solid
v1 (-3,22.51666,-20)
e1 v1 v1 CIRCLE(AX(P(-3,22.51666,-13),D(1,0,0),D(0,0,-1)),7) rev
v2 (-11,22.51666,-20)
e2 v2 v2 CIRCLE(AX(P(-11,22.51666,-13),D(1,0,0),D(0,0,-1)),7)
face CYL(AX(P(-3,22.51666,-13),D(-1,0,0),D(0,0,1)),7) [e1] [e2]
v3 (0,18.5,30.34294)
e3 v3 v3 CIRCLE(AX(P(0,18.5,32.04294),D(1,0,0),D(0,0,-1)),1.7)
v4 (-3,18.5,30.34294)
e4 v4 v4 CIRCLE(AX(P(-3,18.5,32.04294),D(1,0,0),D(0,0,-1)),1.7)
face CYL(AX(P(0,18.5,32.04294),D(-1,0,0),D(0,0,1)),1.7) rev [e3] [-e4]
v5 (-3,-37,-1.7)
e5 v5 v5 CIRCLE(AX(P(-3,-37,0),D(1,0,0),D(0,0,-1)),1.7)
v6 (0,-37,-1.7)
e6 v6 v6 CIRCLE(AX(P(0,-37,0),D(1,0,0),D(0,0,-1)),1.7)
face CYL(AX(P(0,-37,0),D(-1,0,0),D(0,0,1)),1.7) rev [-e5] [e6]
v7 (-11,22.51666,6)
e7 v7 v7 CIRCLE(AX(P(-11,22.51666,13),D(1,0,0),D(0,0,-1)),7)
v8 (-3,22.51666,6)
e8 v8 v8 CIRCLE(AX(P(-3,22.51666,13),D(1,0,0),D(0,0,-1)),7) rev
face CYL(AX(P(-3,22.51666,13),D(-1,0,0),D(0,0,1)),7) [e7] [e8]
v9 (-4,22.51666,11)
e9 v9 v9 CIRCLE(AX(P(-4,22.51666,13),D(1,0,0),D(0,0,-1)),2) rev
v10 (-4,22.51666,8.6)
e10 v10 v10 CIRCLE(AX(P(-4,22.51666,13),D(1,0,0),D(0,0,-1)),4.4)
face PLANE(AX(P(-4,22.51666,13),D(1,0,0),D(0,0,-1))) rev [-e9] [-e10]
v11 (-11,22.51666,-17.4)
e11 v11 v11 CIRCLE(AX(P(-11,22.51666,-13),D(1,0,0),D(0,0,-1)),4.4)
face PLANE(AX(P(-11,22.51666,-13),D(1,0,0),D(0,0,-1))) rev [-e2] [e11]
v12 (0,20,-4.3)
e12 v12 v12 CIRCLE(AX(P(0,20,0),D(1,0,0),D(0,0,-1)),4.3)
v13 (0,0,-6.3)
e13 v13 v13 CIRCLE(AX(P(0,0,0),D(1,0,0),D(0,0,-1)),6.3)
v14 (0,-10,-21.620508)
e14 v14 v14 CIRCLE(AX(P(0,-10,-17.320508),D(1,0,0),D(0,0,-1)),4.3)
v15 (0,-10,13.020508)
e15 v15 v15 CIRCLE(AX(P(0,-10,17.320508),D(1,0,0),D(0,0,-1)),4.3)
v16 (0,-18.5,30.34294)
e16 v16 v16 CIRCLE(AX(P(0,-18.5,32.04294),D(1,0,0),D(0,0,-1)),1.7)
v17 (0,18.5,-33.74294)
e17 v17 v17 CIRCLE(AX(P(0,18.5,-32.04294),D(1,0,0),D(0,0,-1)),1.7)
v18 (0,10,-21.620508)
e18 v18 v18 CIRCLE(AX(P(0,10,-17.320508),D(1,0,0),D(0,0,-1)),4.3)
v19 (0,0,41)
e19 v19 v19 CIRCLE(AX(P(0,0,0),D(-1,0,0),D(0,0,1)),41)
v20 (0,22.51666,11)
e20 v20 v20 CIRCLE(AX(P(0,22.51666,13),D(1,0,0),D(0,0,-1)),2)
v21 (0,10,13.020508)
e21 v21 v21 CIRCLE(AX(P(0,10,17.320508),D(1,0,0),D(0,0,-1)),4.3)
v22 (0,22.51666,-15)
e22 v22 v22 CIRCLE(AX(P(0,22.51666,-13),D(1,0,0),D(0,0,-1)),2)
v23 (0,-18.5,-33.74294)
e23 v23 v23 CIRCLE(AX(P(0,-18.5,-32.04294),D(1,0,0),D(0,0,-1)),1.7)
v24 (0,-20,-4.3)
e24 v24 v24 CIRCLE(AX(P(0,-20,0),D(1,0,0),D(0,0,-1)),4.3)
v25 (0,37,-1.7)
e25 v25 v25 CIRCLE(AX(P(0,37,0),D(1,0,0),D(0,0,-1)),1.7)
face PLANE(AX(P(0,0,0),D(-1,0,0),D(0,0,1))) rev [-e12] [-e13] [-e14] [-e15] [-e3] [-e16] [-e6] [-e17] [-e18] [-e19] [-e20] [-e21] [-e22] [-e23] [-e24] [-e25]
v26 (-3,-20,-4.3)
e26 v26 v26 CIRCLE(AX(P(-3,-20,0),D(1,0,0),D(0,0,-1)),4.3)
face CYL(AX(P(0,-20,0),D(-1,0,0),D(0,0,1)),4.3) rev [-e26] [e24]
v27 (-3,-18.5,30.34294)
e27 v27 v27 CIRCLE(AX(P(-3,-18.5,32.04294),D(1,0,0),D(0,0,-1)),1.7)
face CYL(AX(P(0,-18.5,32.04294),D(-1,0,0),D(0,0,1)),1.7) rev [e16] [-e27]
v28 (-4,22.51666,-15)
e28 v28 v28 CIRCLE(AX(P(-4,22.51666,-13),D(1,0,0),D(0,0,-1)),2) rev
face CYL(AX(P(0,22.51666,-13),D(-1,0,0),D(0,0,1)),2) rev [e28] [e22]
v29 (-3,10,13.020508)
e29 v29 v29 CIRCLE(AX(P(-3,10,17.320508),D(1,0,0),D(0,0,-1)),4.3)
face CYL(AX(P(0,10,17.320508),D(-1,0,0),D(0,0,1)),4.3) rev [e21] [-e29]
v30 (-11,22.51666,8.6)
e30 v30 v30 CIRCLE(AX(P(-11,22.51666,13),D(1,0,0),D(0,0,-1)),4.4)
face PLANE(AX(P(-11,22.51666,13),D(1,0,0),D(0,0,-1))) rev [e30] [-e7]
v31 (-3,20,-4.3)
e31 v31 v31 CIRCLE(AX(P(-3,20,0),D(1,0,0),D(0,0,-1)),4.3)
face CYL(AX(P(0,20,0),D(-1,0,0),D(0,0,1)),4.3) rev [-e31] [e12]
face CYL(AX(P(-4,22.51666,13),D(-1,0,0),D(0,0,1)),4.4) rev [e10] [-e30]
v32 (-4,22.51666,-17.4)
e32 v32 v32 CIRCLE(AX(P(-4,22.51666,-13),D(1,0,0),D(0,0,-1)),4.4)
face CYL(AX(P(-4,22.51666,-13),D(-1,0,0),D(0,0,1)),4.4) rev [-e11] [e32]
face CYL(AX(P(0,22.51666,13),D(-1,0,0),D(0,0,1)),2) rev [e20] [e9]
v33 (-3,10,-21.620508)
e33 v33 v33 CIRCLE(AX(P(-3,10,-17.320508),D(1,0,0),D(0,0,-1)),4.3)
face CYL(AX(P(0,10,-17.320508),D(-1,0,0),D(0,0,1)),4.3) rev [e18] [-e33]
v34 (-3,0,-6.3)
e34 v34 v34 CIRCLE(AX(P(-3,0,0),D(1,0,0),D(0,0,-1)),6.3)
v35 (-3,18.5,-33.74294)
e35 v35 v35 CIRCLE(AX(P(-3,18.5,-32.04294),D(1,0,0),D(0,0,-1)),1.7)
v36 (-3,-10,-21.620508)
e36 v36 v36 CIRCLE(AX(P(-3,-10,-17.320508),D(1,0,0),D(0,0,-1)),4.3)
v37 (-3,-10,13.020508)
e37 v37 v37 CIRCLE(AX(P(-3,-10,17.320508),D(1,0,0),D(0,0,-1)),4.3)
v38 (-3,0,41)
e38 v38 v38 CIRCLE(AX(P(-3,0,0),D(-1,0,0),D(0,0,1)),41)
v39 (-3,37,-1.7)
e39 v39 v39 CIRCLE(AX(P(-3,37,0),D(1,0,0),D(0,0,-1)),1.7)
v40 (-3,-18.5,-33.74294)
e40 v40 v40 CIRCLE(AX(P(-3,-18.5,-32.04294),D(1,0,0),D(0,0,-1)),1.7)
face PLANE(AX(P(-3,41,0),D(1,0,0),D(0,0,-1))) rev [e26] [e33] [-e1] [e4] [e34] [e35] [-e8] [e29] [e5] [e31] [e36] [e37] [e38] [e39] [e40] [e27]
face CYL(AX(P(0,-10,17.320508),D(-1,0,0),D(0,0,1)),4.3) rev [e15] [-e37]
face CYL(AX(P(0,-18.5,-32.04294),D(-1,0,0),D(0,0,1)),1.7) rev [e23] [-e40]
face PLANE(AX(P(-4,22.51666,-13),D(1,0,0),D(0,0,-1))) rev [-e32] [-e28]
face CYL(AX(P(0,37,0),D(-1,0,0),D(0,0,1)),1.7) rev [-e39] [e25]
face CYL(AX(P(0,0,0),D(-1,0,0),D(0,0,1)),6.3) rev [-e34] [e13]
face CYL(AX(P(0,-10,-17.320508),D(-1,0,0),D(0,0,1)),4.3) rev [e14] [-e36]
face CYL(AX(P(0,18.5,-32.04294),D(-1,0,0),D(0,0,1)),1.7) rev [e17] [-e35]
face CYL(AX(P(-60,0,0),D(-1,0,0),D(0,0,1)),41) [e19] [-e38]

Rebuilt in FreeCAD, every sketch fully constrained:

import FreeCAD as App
import Part
import Sketcher

V = App.Vector

doc = App.newDocument("Part")
params = doc.addObject("Spreadsheet::Sheet", "Params")
for row, (alias, value) in enumerate([
    ("sketch1_width", "3 mm"),
    ("sketch1_height", "41 mm"),
    ("revolution_angle", "360 deg"),
    ("sketch2_diameter", "14 mm"),
    ("pad1_length", "8 mm"),
    ("sketch3_diameter", "12.6 mm"),
    ("sketch3_diameter2", "8.6 mm"),
    ("pocket1_length", "3 mm"),
    ("sketch4_diameter", "3.4 mm"),
    ("pocket2_length", "3 mm"),
    ("sketch5_diameter", "8.8 mm"),
    ("pocket3_length", "7 mm"),
    ("sketch6_diameter", "4 mm"),
    ("pocket4_length", "11 mm"),
], start=1):
    params.set(f"A{row}", alias)
    params.set(f"B{row}", "=" + value)
    params.setAlias(f"B{row}", alias)

body = doc.addObject("PartDesign::Body", "Body")

sketch1 = body.newObject("Sketcher::SketchObject", "Sketch")
sketch1.AttachmentSupport = (doc.getObject("XY_Plane"), [""])
sketch1.MapMode = "FlatFace"
sketch1.addGeometry([
    Part.LineSegment(V(-3, 41, 0), V(-3, 0, 0)),
    Part.LineSegment(V(-3, 0, 0), V(0, 0, 0)),
    Part.LineSegment(V(0, 0, 0), V(0, 41, 0)),
    Part.LineSegment(V(0, 41, 0), V(-3, 41, 0)),
], False)
sketch1.addConstraint([
    Sketcher.Constraint("Coincident", 0, 2, 1, 1),
    Sketcher.Constraint("Coincident", 1, 2, 2, 1),
    Sketcher.Constraint("Coincident", 2, 2, 3, 1),
    Sketcher.Constraint("Coincident", 3, 2, 0, 1),
    Sketcher.Constraint("Vertical", 0),
    Sketcher.Constraint("Horizontal", 1),
    Sketcher.Constraint("Vertical", 2),
    Sketcher.Constraint("Horizontal", 3),
    Sketcher.Constraint("Coincident", 1, 2, -1, 1),
    Sketcher.Constraint("DistanceX", 1, 1, 1, 2, 3.0),
    Sketcher.Constraint("DistanceY", 0, 2, 0, 1, 41.0),
])
sketch1.setExpression("Constraints[9]", "Params.sketch1_width")
sketch1.setExpression("Constraints[10]", "Params.sketch1_height")
revolution = body.newObject("PartDesign::Revolution", "Revolution")
revolution.Profile = sketch1
revolution.ReferenceAxis = (sketch1, ["H_Axis"])
revolution.setExpression("Angle", "Params.revolution_angle")

sketch2 = body.newObject("Sketcher::SketchObject", "Sketch001")
sketch2.AttachmentSupport = (doc.getObject("YZ_Plane"), [""])
sketch2.MapMode = "FlatFace"
sketch2.AttachmentOffset = App.Placement(V(0, 0, -11), App.Rotation())
sketch2.addGeometry([
    Part.Circle(V(22.51666, 13, 0), V(0, 0, 1), 7),
    Part.Circle(V(22.51666, -13, 0), V(0, 0, 1), 7),
], False)
sketch2.addConstraint([
    Sketcher.Constraint("Equal", 0, 1),
    Sketcher.Constraint("Symmetric", 0, 3, 1, 3, -1),
    Sketcher.Constraint("Diameter", 0, 14.0),
    Sketcher.Constraint("DistanceY", -1, 1, 0, 3, 13.0),
    Sketcher.Constraint("DistanceX", -1, 1, 0, 3, 22.51666),
])
sketch2.setExpression("Constraints[2]", "Params.sketch2_diameter")
pad1 = body.newObject("PartDesign::Pad", "Pad")
pad1.Profile = sketch2
pad1.setExpression("Length", "Params.pad1_length")

sketch3 = body.newObject("Sketcher::SketchObject", "Sketch002")
sketch3.AttachmentSupport = (doc.getObject("YZ_Plane"), [""])
sketch3.MapMode = "FlatFace"
sketch3.AttachmentOffset = App.Placement(V(0, 0, -3), App.Rotation())
sketch3.addGeometry([
    Part.Circle(V(0, 0, 0), V(0, 0, 1), 6.3),
    Part.Circle(V(20, 0, 0), V(0, 0, 1), 4.3),
    Part.Circle(V(10, 17.320508, 0), V(0, 0, 1), 4.3),
    Part.Circle(V(-10, 17.320508, 0), V(0, 0, 1), 4.3),
    Part.Circle(V(-20, 0, 0), V(0, 0, 1), 4.3),
    Part.Circle(V(-10, -17.320508, 0), V(0, 0, 1), 4.3),
    Part.Circle(V(10, -17.320508, 0), V(0, 0, 1), 4.3),
], False)
sketch3.addConstraint([
    Sketcher.Constraint("Coincident", 0, 3, -1, 1),
    Sketcher.Constraint("Equal", 1, 2),
    Sketcher.Constraint("Equal", 2, 3),
    Sketcher.Constraint("Equal", 3, 4),
    Sketcher.Constraint("Equal", 4, 5),
    Sketcher.Constraint("Equal", 5, 6),
    Sketcher.Constraint("Symmetric", 1, 3, 4, 3, -1, 1),
    Sketcher.Constraint("Symmetric", 2, 3, 5, 3, -1, 1),
    Sketcher.Constraint("Symmetric", 3, 3, 6, 3, -1, 1),
    Sketcher.Constraint("Symmetric", 2, 3, 3, 3, -2),
    Sketcher.Constraint("PointOnObject", 1, 3, -1),
    Sketcher.Constraint("Diameter", 0, 12.6),
    Sketcher.Constraint("Diameter", 1, 8.6),
    Sketcher.Constraint("DistanceX", -1, 1, 1, 3, 20.0),
    Sketcher.Constraint("DistanceX", -1, 1, 2, 3, 10.0),
    Sketcher.Constraint("DistanceY", -1, 1, 2, 3, 17.320508),
])
sketch3.setExpression("Constraints[11]", "Params.sketch3_diameter")
sketch3.setExpression("Constraints[12]", "Params.sketch3_diameter2")
pocket1 = body.newObject("PartDesign::Pocket", "Pocket")
pocket1.Profile = sketch3
pocket1.setExpression("Length", "Params.pocket1_length")
pocket1.Reversed = True

sketch4 = body.newObject("Sketcher::SketchObject", "Sketch003")
sketch4.AttachmentSupport = (doc.getObject("YZ_Plane"), [""])
sketch4.MapMode = "FlatFace"
sketch4.AttachmentOffset = App.Placement(V(0, 0, -3), App.Rotation())
sketch4.addGeometry([
    Part.Circle(V(37, 0, 0), V(0, 0, 1), 1.7),
    Part.Circle(V(18.5, 32.04294, 0), V(0, 0, 1), 1.7),
    Part.Circle(V(-18.5, 32.04294, 0), V(0, 0, 1), 1.7),
    Part.Circle(V(-37, 0, 0), V(0, 0, 1), 1.7),
    Part.Circle(V(-18.5, -32.04294, 0), V(0, 0, 1), 1.7),
    Part.Circle(V(18.5, -32.04294, 0), V(0, 0, 1), 1.7),
], False)
sketch4.addConstraint([
    Sketcher.Constraint("Equal", 0, 1),
    Sketcher.Constraint("Equal", 1, 2),
    Sketcher.Constraint("Equal", 2, 3),
    Sketcher.Constraint("Equal", 3, 4),
    Sketcher.Constraint("Equal", 4, 5),
    Sketcher.Constraint("Symmetric", 0, 3, 3, 3, -1, 1),
    Sketcher.Constraint("Symmetric", 1, 3, 4, 3, -1, 1),
    Sketcher.Constraint("Symmetric", 2, 3, 5, 3, -1, 1),
    Sketcher.Constraint("Symmetric", 1, 3, 2, 3, -2),
    Sketcher.Constraint("PointOnObject", 0, 3, -1),
    Sketcher.Constraint("Diameter", 0, 3.4),
    Sketcher.Constraint("DistanceX", -1, 1, 0, 3, 37.0),
    Sketcher.Constraint("DistanceX", 2, 3, 1, 3, 37.0),
    Sketcher.Constraint("DistanceY", -1, 1, 1, 3, 32.04294),
])
sketch4.setExpression("Constraints[10]", "Params.sketch4_diameter")
pocket2 = body.newObject("PartDesign::Pocket", "Pocket001")
pocket2.Profile = sketch4
pocket2.setExpression("Length", "Params.pocket2_length")
pocket2.Reversed = True

sketch5 = body.newObject("Sketcher::SketchObject", "Sketch004")
sketch5.AttachmentSupport = (doc.getObject("YZ_Plane"), [""])
sketch5.MapMode = "FlatFace"
sketch5.AttachmentOffset = App.Placement(V(0, 0, -11), App.Rotation())
sketch5.addGeometry([
    Part.Circle(V(22.51666, 13, 0), V(0, 0, 1), 4.4),
    Part.Circle(V(22.51666, -13, 0), V(0, 0, 1), 4.4),
], False)
sketch5.addConstraint([
    Sketcher.Constraint("Equal", 0, 1),
    Sketcher.Constraint("Symmetric", 0, 3, 1, 3, -1),
    Sketcher.Constraint("Diameter", 0, 8.8),
    Sketcher.Constraint("DistanceY", -1, 1, 0, 3, 13.0),
    Sketcher.Constraint("DistanceX", -1, 1, 0, 3, 22.51666),
])
sketch5.setExpression("Constraints[2]", "Params.sketch5_diameter")
pocket3 = body.newObject("PartDesign::Pocket", "Pocket002")
pocket3.Profile = sketch5
pocket3.setExpression("Length", "Params.pocket3_length")
pocket3.Reversed = True

sketch6 = body.newObject("Sketcher::SketchObject", "Sketch005")
sketch6.AttachmentSupport = (doc.getObject("YZ_Plane"), [""])
sketch6.MapMode = "FlatFace"
sketch6.AttachmentOffset = App.Placement(V(0, 0, -11), App.Rotation())
sketch6.addGeometry([
    Part.Circle(V(22.51666, 13, 0), V(0, 0, 1), 2),
    Part.Circle(V(22.51666, -13, 0), V(0, 0, 1), 2),
], False)
sketch6.addConstraint([
    Sketcher.Constraint("Equal", 0, 1),
    Sketcher.Constraint("Symmetric", 0, 3, 1, 3, -1),
    Sketcher.Constraint("Diameter", 0, 4.0),
    Sketcher.Constraint("DistanceY", -1, 1, 0, 3, 13.0),
    Sketcher.Constraint("DistanceX", -1, 1, 0, 3, 22.51666),
])
sketch6.setExpression("Constraints[2]", "Params.sketch6_diameter")
pocket4 = body.newObject("PartDesign::Pocket", "Pocket003")
pocket4.Profile = sketch6
pocket4.setExpression("Length", "Params.pocket4_length")
pocket4.Reversed = True

doc.recompute()
